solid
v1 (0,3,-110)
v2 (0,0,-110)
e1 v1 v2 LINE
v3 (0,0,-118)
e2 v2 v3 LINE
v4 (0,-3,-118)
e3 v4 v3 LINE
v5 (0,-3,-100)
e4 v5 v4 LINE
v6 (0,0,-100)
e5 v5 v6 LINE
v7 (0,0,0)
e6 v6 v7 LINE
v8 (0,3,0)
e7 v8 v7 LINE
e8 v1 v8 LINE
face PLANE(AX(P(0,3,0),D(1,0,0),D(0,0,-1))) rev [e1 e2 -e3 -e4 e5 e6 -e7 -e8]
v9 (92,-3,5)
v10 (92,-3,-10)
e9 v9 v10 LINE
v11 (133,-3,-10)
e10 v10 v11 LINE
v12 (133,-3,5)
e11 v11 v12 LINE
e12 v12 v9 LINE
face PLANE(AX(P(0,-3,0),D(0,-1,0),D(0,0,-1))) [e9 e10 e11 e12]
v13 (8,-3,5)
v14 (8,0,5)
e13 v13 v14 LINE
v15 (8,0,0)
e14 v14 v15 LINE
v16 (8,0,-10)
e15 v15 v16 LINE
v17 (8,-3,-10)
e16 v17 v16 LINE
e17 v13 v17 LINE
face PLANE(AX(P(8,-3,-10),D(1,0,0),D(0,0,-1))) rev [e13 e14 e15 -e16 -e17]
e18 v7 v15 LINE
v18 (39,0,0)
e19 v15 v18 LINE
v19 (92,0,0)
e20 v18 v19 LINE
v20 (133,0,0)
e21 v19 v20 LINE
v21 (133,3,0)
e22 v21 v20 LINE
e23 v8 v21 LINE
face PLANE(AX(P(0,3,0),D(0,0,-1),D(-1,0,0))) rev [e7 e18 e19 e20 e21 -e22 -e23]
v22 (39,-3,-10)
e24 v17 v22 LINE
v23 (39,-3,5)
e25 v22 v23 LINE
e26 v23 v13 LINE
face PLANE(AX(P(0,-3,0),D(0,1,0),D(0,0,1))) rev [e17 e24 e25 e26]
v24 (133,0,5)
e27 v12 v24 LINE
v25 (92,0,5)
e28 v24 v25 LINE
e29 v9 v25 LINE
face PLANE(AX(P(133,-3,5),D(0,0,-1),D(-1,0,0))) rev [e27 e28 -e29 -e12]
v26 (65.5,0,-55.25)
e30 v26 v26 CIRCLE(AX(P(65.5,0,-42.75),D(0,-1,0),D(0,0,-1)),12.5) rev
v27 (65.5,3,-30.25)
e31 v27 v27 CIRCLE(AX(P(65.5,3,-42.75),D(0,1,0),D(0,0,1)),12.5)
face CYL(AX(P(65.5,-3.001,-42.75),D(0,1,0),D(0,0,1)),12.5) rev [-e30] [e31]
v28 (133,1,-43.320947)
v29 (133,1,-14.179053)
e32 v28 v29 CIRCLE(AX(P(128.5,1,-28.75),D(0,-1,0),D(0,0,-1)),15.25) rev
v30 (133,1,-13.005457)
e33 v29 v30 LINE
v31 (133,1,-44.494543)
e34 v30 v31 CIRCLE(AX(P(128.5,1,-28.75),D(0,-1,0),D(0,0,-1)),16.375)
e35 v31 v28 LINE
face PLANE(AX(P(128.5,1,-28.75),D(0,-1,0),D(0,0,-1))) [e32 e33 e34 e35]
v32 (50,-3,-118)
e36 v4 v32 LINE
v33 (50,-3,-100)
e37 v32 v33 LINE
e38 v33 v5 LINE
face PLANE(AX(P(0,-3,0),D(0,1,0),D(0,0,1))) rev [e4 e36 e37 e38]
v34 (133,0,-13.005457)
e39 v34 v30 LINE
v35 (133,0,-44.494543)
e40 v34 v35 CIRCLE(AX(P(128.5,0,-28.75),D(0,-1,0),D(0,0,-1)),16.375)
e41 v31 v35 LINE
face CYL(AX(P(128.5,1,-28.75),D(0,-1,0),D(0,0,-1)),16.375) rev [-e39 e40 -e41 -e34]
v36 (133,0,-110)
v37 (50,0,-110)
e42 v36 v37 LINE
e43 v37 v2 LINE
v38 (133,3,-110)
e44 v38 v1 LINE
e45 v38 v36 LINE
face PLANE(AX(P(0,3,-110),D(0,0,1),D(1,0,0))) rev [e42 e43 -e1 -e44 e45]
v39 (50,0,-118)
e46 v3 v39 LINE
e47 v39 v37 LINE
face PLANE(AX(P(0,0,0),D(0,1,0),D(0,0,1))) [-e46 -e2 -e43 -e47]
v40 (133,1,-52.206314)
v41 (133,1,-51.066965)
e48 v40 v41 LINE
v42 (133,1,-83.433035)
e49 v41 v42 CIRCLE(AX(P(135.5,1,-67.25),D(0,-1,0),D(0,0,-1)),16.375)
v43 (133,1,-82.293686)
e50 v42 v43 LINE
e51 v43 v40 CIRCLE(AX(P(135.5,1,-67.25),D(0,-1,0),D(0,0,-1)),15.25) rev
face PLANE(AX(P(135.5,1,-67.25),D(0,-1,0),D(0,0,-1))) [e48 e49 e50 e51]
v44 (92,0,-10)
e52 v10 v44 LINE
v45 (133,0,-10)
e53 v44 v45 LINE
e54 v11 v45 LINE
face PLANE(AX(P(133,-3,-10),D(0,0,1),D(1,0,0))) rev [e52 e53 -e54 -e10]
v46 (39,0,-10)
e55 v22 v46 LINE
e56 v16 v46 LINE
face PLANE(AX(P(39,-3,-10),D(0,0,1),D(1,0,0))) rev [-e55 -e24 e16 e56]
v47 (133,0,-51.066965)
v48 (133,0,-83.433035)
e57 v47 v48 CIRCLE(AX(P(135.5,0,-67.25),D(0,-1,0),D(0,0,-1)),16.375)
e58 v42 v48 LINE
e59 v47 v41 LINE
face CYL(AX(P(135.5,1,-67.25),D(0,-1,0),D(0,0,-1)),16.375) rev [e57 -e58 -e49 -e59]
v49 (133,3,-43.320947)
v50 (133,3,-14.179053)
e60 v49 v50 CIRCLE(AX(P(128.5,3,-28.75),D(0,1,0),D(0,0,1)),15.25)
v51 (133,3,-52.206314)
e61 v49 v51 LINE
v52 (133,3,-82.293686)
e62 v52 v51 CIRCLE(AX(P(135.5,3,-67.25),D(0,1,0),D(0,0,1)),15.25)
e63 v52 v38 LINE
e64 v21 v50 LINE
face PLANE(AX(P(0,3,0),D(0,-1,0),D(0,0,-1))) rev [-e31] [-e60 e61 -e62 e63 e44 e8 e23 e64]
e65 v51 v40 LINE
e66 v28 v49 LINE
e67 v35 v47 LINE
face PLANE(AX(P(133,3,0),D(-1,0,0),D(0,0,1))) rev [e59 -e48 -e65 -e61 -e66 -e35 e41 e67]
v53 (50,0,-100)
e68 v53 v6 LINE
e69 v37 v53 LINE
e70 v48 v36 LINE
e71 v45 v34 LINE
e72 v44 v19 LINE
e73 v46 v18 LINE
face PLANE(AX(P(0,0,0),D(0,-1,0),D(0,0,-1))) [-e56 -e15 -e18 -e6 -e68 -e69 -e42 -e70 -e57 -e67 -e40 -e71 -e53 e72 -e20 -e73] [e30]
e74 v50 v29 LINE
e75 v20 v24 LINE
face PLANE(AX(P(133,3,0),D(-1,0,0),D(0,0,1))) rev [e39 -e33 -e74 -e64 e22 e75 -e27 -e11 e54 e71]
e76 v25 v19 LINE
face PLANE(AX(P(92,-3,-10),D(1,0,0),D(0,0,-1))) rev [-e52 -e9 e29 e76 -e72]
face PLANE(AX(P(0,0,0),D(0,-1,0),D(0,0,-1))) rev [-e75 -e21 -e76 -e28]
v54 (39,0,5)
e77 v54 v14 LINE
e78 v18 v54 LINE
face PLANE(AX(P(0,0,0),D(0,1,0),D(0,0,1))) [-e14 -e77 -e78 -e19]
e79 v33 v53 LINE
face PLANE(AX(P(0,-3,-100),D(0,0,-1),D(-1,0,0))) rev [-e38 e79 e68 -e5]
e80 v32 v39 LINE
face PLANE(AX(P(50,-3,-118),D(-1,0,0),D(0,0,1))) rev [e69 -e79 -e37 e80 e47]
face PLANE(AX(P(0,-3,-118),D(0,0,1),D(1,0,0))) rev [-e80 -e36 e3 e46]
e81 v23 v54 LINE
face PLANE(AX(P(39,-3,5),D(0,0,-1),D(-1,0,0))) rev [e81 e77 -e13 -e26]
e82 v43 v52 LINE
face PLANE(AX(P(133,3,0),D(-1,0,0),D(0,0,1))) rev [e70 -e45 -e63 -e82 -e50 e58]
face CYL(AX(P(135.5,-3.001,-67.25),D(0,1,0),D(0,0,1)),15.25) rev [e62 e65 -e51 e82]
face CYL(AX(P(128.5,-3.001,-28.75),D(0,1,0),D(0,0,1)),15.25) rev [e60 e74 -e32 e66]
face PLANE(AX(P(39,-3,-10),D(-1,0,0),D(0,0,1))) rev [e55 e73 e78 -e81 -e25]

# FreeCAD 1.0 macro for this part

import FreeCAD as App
import Part
import Sketcher

V = App.Vector

doc = App.newDocument("Part")
params = doc.addObject("Spreadsheet::Sheet", "Params")
for row, (alias, value) in enumerate([
    ("sketch1_width", "133 mm"),
    ("sketch1_height", "110 mm"),
    ("pad1_length", "3 mm"),
    ("sketch2_width", "50 mm"),
    ("sketch2_width2", "41 mm"),
    ("sketch2_width3", "31 mm"),
    ("sketch2_height", "18 mm"),
    ("sketch2_height2", "15 mm"),
    ("pad2_length", "3 mm"),
    ("sketch3_diameter", "25 mm"),
    ("sketch4_diameter", "30.5 mm"),
    ("sketch5_diameter", "30.5 mm"),
    ("pocket3_length", "3 mm"),
    ("sketch6_diameter", "32.75 mm"),
    ("pocket4_length", "1 mm"),
], start=1):
    params.set(f"A{row}", alias)
    params.set(f"B{row}", "=" + value)
    params.setAlias(f"B{row}", alias)

body = doc.addObject("PartDesign::Body", "Body")

# Sketch on XZ plane
sketch1 = doc.addObject("Sketcher::SketchObject", "Sketch")
body.addObject(sketch1)
sketch1.AttachmentSupport = (doc.XZ_Plane, [""])
sketch1.MapMode = "FlatFace"
sketch1.addGeometry(Part.LineSegment(V(0, -110, 0), V(0, 0, 0)), False)
sketch1.addGeometry(Part.LineSegment(V(0, 0, 0), V(133, 0, 0)), False)
sketch1.addGeometry(Part.LineSegment(V(133, 0, 0), V(133, -110, 0)), False)
sketch1.addGeometry(Part.LineSegment(V(133, -110, 0), V(0, -110, 0)), False)
sketch1.addConstraint(Sketcher.Constraint("Coincident", 0, 2, 1, 1))
sketch1.addConstraint(Sketcher.Constraint("Coincident", 1, 2, 2, 1))
sketch1.addConstraint(Sketcher.Constraint("Coincident", 2, 2, 3, 1))
sketch1.addConstraint(Sketcher.Constraint("Coincident", 3, 2, 0, 1))
sketch1.addConstraint(Sketcher.Constraint("Vertical", 0))
sketch1.addConstraint(Sketcher.Constraint("Horizontal", 1))
sketch1.addConstraint(Sketcher.Constraint("Vertical", 2))
sketch1.addConstraint(Sketcher.Constraint("Horizontal", 3))
sketch1.addConstraint(Sketcher.Constraint("Coincident", 0, 2, -1, 1))
sketch1.addConstraint(Sketcher.Constraint("DistanceX", 1, 1, 1, 2, 133.0))
sketch1.addConstraint(Sketcher.Constraint("DistanceY", 0, 1, 0, 2, 110.0))
sketch1.setExpression("Constraints[9]", "Params.sketch1_width")
sketch1.setExpression("Constraints[10]", "Params.sketch1_height")
pad1 = doc.addObject("PartDesign::Pad", "Pad")
body.addObject(pad1)
pad1.Profile = sketch1
pad1.setExpression("Length", "Params.pad1_length")
pad1.Reversed = True

# Sketch on XZ plane
sketch2 = doc.addObject("Sketcher::SketchObject", "Sketch001")
body.addObject(sketch2)
sketch2.AttachmentSupport = (doc.XZ_Plane, [""])
sketch2.MapMode = "FlatFace"
sketch2.addGeometry(Part.LineSegment(V(0, -100, 0), V(0, -118, 0)), False)
sketch2.addGeometry(Part.LineSegment(V(0, -118, 0), V(50, -118, 0)), False)
sketch2.addGeometry(Part.LineSegment(V(50, -118, 0), V(50, -100, 0)), False)
sketch2.addGeometry(Part.LineSegment(V(50, -100, 0), V(0, -100, 0)), False)
sketch2.addGeometry(Part.LineSegment(V(92, 5, 0), V(92, -10, 0)), False)
sketch2.addGeometry(Part.LineSegment(V(92, -10, 0), V(133, -10, 0)), False)
sketch2.addGeometry(Part.LineSegment(V(133, -10, 0), V(133, 5, 0)), False)
sketch2.addGeometry(Part.LineSegment(V(133, 5, 0), V(92, 5, 0)), False)
sketch2.addGeometry(Part.LineSegment(V(8, 5, 0), V(8, -10, 0)), False)
sketch2.addGeometry(Part.LineSegment(V(8, -10, 0), V(39, -10, 0)), False)
sketch2.addGeometry(Part.LineSegment(V(39, -10, 0), V(39, 5, 0)), False)
sketch2.addGeometry(Part.LineSegment(V(39, 5, 0), V(8, 5, 0)), False)
sketch2.addConstraint(Sketcher.Constraint("Coincident", 0, 2, 1, 1))
sketch2.addConstraint(Sketcher.Constraint("Coincident", 1, 2, 2, 1))
sketch2.addConstraint(Sketcher.Constraint("Coincident", 2, 2, 3, 1))
sketch2.addConstraint(Sketcher.Constraint("Coincident", 3, 2, 0, 1))
sketch2.addConstraint(Sketcher.Constraint("Coincident", 4, 2, 5, 1))
sketch2.addConstraint(Sketcher.Constraint("Coincident", 5, 2, 6, 1))
sketch2.addConstraint(Sketcher.Constraint("Coincident", 6, 2, 7, 1))
sketch2.addConstraint(Sketcher.Constraint("Coincident", 7, 2, 4, 1))
sketch2.addConstraint(Sketcher.Constraint("Coincident", 8, 2, 9, 1))
sketch2.addConstraint(Sketcher.Constraint("Coincident", 9, 2, 10, 1))
sketch2.addConstraint(Sketcher.Constraint("Coincident", 10, 2, 11, 1))
sketch2.addConstraint(Sketcher.Constraint("Coincident", 11, 2, 8, 1))
sketch2.addConstraint(Sketcher.Constraint("Vertical", 0))
sketch2.addConstraint(Sketcher.Constraint("Horizontal", 1))
sketch2.addConstraint(Sketcher.Constraint("Vertical", 2))
sketch2.addConstraint(Sketcher.Constraint("Horizontal", 3))
sketch2.addConstraint(Sketcher.Constraint("Vertical", 4))
sketch2.addConstraint(Sketcher.Constraint("Horizontal", 5))
sketch2.addConstraint(Sketcher.Constraint("Vertical", 6))
sketch2.addConstraint(Sketcher.Constraint("Horizontal", 7))
sketch2.addConstraint(Sketcher.Constraint("Vertical", 8))
sketch2.addConstraint(Sketcher.Constraint("Horizontal", 9))
sketch2.addConstraint(Sketcher.Constraint("Vertical", 10))
sketch2.addConstraint(Sketcher.Constraint("Horizontal", 11))
sketch2.addConstraint(Sketcher.Constraint("PointOnObject", 0, 2, -2))
sketch2.addConstraint(Sketcher.Constraint("Horizontal", 5, 2, 8, 2))
sketch2.addConstraint(Sketcher.Constraint("Horizontal", 7, 2, 10, 2))
sketch2.addConstraint(Sketcher.Constraint("DistanceX", 1, 1, 1, 2, 50.0))
sketch2.addConstraint(Sketcher.Constraint("DistanceX", 5, 1, 5, 2, 41.0))
sketch2.addConstraint(Sketcher.Constraint("DistanceX", 9, 1, 9, 2, 31.0))
sketch2.addConstraint(Sketcher.Constraint("DistanceY", 0, 2, 0, 1, 18.0))
sketch2.addConstraint(Sketcher.Constraint("DistanceY", 4, 2, 4, 1, 15.0))
sketch2.addConstraint(Sketcher.Constraint("DistanceY", 0, 2, -1, 1, 118.0))
sketch2.addConstraint(Sketcher.Constraint("DistanceX", -1, 1, 4, 2, 92.0))
sketch2.addConstraint(Sketcher.Constraint("DistanceY", 4, 2, -1, 1, 10.0))
sketch2.addConstraint(Sketcher.Constraint("DistanceX", -1, 1, 8, 2, 8.0))
sketch2.setExpression("Constraints[27]", "Params.sketch2_width")
sketch2.setExpression("Constraints[28]", "Params.sketch2_width2")
sketch2.setExpression("Constraints[29]", "Params.sketch2_width3")
sketch2.setExpression("Constraints[30]", "Params.sketch2_height")
sketch2.setExpression("Constraints[31]", "Params.sketch2_height2")
pad2 = doc.addObject("PartDesign::Pad", "Pad001")
body.addObject(pad2)
pad2.Profile = sketch2
pad2.setExpression("Length", "Params.pad2_length")

# Sketch on XZ plane
sketch3 = doc.addObject("Sketcher::SketchObject", "Sketch002")
body.addObject(sketch3)
sketch3.AttachmentSupport = (doc.XZ_Plane, [""])
sketch3.MapMode = "FlatFace"
sketch3.AttachmentOffset = App.Placement(V(0, 0, -3), App.Rotation())
sketch3.addGeometry(Part.Circle(V(65.5, -42.75, 0), V(0, 0, 1), 12.5), False)
sketch3.addConstraint(Sketcher.Constraint("Diameter", 0, 25.0))
sketch3.addConstraint(Sketcher.Constraint("DistanceX", -1, 1, 0, 3, 65.5))
sketch3.addConstraint(Sketcher.Constraint("DistanceY", 0, 3, -1, 1, 42.75))
sketch3.setExpression("Constraints[0]", "Params.sketch3_diameter")
pocket1 = doc.addObject("PartDesign::Pocket", "Pocket")
body.addObject(pocket1)
pocket1.Profile = sketch3
pocket1.Type = "UpToFirst"
pocket1.Reversed = True

# Sketch on XZ plane
sketch4 = doc.addObject("Sketcher::SketchObject", "Sketch003")
body.addObject(sketch4)
sketch4.AttachmentSupport = (doc.XZ_Plane, [""])
sketch4.MapMode = "FlatFace"
sketch4.AttachmentOffset = App.Placement(V(0, 0, -3), App.Rotation())
sketch4.addGeometry(Part.Circle(V(128.5, -28.75, 0), V(0, 0, 1), 15.25), False)
sketch4.addConstraint(Sketcher.Constraint("Diameter", 0, 30.5))
sketch4.addConstraint(Sketcher.Constraint("DistanceX", -1, 1, 0, 3, 128.5))
sketch4.addConstraint(Sketcher.Constraint("DistanceY", 0, 3, -1, 1, 28.75))
sketch4.setExpression("Constraints[0]", "Params.sketch4_diameter")
pocket2 = doc.addObject("PartDesign::Pocket", "Pocket001")
body.addObject(pocket2)
pocket2.Profile = sketch4
pocket2.Type = "UpToFirst"
pocket2.Reversed = True

# Sketch on XZ plane
sketch5 = doc.addObject("Sketcher::SketchObject", "Sketch004")
body.addObject(sketch5)
sketch5.AttachmentSupport = (doc.XZ_Plane, [""])
sketch5.MapMode = "FlatFace"
sketch5.AttachmentOffset = App.Placement(V(0, 0, -3), App.Rotation())
sketch5.addGeometry(Part.Circle(V(135.5, -67.25, 0), V(0, 0, 1), 15.25), False)
sketch5.addConstraint(Sketcher.Constraint("Diameter", 0, 30.5))
sketch5.addConstraint(Sketcher.Constraint("DistanceX", -1, 1, 0, 3, 135.5))
sketch5.addConstraint(Sketcher.Constraint("DistanceY", 0, 3, -1, 1, 67.25))
sketch5.setExpression("Constraints[0]", "Params.sketch5_diameter")
pocket3 = doc.addObject("PartDesign::Pocket", "Pocket002")
body.addObject(pocket3)
pocket3.Profile = sketch5
pocket3.setExpression("Length", "Params.pocket3_length")
pocket3.Reversed = True

# Sketch on XZ plane
sketch6 = doc.addObject("Sketcher::SketchObject", "Sketch005")
body.addObject(sketch6)
sketch6.AttachmentSupport = (doc.XZ_Plane, [""])
sketch6.MapMode = "FlatFace"
sketch6.addGeometry(Part.Circle(V(128.5, -28.75, 0), V(0, 0, 1), 16.375), False)
sketch6.addGeometry(Part.Circle(V(135.5, -67.25, 0), V(0, 0, 1), 16.375), False)
sketch6.addConstraint(Sketcher.Constraint("Equal", 0, 1))
sketch6.addConstraint(Sketcher.Constraint("Diameter", 0, 32.75))
sketch6.addConstraint(Sketcher.Constraint("DistanceX", 0, 3, 1, 3, 7.0))
sketch6.addConstraint(Sketcher.Constraint("DistanceX", -1, 1, 0, 3, 128.5))
sketch6.addConstraint(Sketcher.Constraint("DistanceY", 1, 3, 0, 3, 38.5))
sketch6.addConstraint(Sketcher.Constraint("DistanceY", 0, 3, -1, 1, 28.75))
sketch6.setExpression("Constraints[1]", "Params.sketch6_diameter")
pocket4 = doc.addObject("PartDesign::Pocket", "Pocket003")
body.addObject(pocket4)
pocket4.Profile = sketch6
pocket4.setExpression("Length", "Params.pocket4_length")

doc.recompute()
